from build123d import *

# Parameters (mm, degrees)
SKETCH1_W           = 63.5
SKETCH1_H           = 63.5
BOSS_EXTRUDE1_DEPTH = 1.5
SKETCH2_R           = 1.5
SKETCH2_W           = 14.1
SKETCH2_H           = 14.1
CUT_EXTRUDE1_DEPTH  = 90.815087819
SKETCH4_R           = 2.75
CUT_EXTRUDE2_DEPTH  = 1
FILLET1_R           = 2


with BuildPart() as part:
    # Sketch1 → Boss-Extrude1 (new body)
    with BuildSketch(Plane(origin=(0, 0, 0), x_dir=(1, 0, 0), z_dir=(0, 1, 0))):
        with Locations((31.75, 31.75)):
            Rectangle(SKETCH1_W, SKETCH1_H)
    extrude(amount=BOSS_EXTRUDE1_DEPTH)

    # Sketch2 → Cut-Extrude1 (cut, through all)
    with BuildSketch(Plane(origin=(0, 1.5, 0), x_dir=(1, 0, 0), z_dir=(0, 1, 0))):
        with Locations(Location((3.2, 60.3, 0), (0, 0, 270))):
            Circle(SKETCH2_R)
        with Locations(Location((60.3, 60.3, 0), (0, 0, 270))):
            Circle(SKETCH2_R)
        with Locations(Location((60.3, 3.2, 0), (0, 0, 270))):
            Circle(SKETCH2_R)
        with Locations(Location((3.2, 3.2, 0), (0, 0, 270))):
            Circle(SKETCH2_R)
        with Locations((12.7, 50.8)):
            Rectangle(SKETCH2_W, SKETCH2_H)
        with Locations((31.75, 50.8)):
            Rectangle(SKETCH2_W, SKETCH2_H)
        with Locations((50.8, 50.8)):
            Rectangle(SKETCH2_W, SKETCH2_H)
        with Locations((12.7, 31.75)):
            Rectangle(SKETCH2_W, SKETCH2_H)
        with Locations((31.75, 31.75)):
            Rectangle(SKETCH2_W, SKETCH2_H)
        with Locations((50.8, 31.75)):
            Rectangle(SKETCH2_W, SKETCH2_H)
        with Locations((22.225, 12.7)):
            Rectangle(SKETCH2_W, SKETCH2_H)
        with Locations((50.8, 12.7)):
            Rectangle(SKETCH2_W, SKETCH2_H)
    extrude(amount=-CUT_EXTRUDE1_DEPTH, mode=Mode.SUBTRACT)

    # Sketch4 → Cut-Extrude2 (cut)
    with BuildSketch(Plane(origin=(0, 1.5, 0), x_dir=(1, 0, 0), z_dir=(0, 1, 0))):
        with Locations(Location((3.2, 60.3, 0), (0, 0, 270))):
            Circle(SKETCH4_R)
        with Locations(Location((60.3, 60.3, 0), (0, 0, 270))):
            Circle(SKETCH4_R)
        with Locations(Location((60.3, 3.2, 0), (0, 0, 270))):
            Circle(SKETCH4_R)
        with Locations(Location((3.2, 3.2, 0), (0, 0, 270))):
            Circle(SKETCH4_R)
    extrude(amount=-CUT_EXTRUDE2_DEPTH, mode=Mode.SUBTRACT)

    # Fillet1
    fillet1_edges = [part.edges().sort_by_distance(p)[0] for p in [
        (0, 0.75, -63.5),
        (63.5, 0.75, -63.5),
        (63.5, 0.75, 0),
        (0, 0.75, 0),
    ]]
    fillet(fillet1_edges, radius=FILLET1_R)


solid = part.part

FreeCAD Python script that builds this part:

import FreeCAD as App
import Part
import Sketcher

V = App.Vector


def edges_at(feature, points):
    """Names of the edges that pass closest to the given points."""
    edges = feature.Shape.Edges
    near = lambda p: min(range(len(edges)), key=lambda i: edges[i].distToShape(Part.Vertex(*p))[0])
    return sorted({f"Edge{near(p) + 1}" for p in points})

doc = App.newDocument("Part")
body = doc.addObject("PartDesign::Body", "Body")

# Sketch on XZ plane
sketch1 = doc.addObject("Sketcher::SketchObject", "Sketch")
body.addObject(sketch1)
sketch1.AttachmentSupport = (doc.XZ_Plane, [""])
sketch1.MapMode = "FlatFace"
sketch1.addGeometry(Part.LineSegment(V(0, -64, 0), V(0, 0, 0)), False)
sketch1.addGeometry(Part.LineSegment(V(0, 0, 0), V(64, 0, 0)), False)
sketch1.addGeometry(Part.LineSegment(V(64, 0, 0), V(64, -64, 0)), False)
sketch1.addGeometry(Part.LineSegment(V(64, -64, 0), V(0, -64, 0)), False)
sketch1.addConstraint(Sketcher.Constraint("Coincident", 0, 2, 1, 1))
sketch1.addConstraint(Sketcher.Constraint("Coincident", 1, 2, 2, 1))
sketch1.addConstraint(Sketcher.Constraint("Coincident", 2, 2, 3, 1))
sketch1.addConstraint(Sketcher.Constraint("Coincident", 3, 2, 0, 1))
sketch1.addConstraint(Sketcher.Constraint("Vertical", 0))
sketch1.addConstraint(Sketcher.Constraint("Horizontal", 1))
sketch1.addConstraint(Sketcher.Constraint("Vertical", 2))
sketch1.addConstraint(Sketcher.Constraint("Horizontal", 3))
sketch1.addConstraint(Sketcher.Constraint("Coincident", 0, 2, -1, 1))
sketch1.addConstraint(Sketcher.Constraint("Equal", 3, 0))
sketch1.addConstraint(Sketcher.Constraint("DistanceX", 1, 1, 1, 2, 63.5))
pad1 = doc.addObject("PartDesign::Pad", "Pad")
body.addObject(pad1)
pad1.Profile = sketch1
pad1.Length = 1.5
pad1.Reversed = True

# Sketch on XZ plane
sketch2 = doc.addObject("Sketcher::SketchObject", "Sketch001")
body.addObject(sketch2)
sketch2.AttachmentSupport = (doc.XZ_Plane, [""])
sketch2.MapMode = "FlatFace"
sketch2.AttachmentOffset = App.Placement(V(0, 0, -1.5), App.Rotation())
sketch2.addGeometry(Part.Circle(V(3.2, -60.3, 0), V(0, 0, 1), 1.5), False)
sketch2.addGeometry(Part.Circle(V(60.3, -60.3, 0), V(0, 0, 1), 1.5), False)
sketch2.addGeometry(Part.Circle(V(60.3, -3.2, 0), V(0, 0, 1), 1.5), False)
sketch2.addGeometry(Part.Circle(V(3.2, -3.2, 0), V(0, 0, 1), 1.5), False)
sketch2.addGeometry(Part.LineSegment(V(5.7, -57.9, 0), V(5.7, -43.8, 0)), False)
sketch2.addGeometry(Part.LineSegment(V(5.7, -43.8, 0), V(19.8, -43.8, 0)), False)
sketch2.addGeometry(Part.LineSegment(V(19.8, -43.8, 0), V(19.8, -57.9, 0)), False)
sketch2.addGeometry(Part.LineSegment(V(19.8, -57.9, 0), V(5.7, -57.9, 0)), False)
sketch2.addGeometry(Part.LineSegment(V(24.7, -57.9, 0), V(24.7, -43.8, 0)), False)
sketch2.addGeometry(Part.LineSegment(V(24.7, -43.8, 0), V(38.8, -43.8, 0)), False)
sketch2.addGeometry(Part.LineSegment(V(38.8, -43.8, 0), V(38.8, -57.9, 0)), False)
sketch2.addGeometry(Part.LineSegment(V(38.8, -57.9, 0), V(24.7, -57.9, 0)), False)
sketch2.addGeometry(Part.LineSegment(V(43.8, -57.9, 0), V(43.8, -43.8, 0)), False)
sketch2.addGeometry(Part.LineSegment(V(43.8, -43.8, 0), V(57.9, -43.8, 0)), False)
sketch2.addGeometry(Part.LineSegment(V(57.9, -43.8, 0), V(57.9, -57.9, 0)), False)
sketch2.addGeometry(Part.LineSegment(V(57.9, -57.9, 0), V(43.8, -57.9, 0)), False)
sketch2.addGeometry(Part.LineSegment(V(5.7, -38.8, 0), V(5.7, -24.7, 0)), False)
sketch2.addGeometry(Part.LineSegment(V(5.7, -24.7, 0), V(19.8, -24.7, 0)), False)
sketch2.addGeometry(Part.LineSegment(V(19.8, -24.7, 0), V(19.8, -38.8, 0)), False)
sketch2.addGeometry(Part.LineSegment(V(19.8, -38.8, 0), V(5.7, -38.8, 0)), False)
sketch2.addGeometry(Part.LineSegment(V(24.7, -38.8, 0), V(24.7, -24.7, 0)), False)
sketch2.addGeometry(Part.LineSegment(V(24.7, -24.7, 0), V(38.8, -24.7, 0)), False)
sketch2.addGeometry(Part.LineSegment(V(38.8, -24.7, 0), V(38.8, -38.8, 0)), False)
sketch2.addGeometry(Part.LineSegment(V(38.8, -38.8, 0), V(24.7, -38.8, 0)), False)
sketch2.addGeometry(Part.LineSegment(V(43.8, -38.8, 0), V(43.8, -24.7, 0)), False)
sketch2.addGeometry(Part.LineSegment(V(43.8, -24.7, 0), V(57.9, -24.7, 0)), False)
sketch2.addGeometry(Part.LineSegment(V(57.9, -24.7, 0), V(57.9, -38.8, 0)), False)
sketch2.addGeometry(Part.LineSegment(V(57.9, -38.8, 0), V(43.8, -38.8, 0)), False)
sketch2.addGeometry(Part.LineSegment(V(15.2, -19.8, 0), V(15.2, -5.7, 0)), False)
sketch2.addGeometry(Part.LineSegment(V(15.2, -5.7, 0), V(29.3, -5.7, 0)), False)
sketch2.addGeometry(Part.LineSegment(V(29.3, -5.7, 0), V(29.3, -19.8, 0)), False)
sketch2.addGeometry(Part.LineSegment(V(29.3, -19.8, 0), V(15.2, -19.8, 0)), False)
sketch2.addGeometry(Part.LineSegment(V(43.8, -19.8, 0), V(43.8, -5.7, 0)), False)
sketch2.addGeometry(Part.LineSegment(V(43.8, -5.7, 0), V(57.9, -5.7, 0)), False)
sketch2.addGeometry(Part.LineSegment(V(57.9, -5.7, 0), V(57.9, -19.8, 0)), False)
sketch2.addGeometry(Part.LineSegment(V(57.9, -19.8, 0), V(43.8, -19.8, 0)), False)
sketch2.addConstraint(Sketcher.Constraint("Coincident", 4, 2, 5, 1))
sketch2.addConstraint(Sketcher.Constraint("Coincident", 5, 2, 6, 1))
sketch2.addConstraint(Sketcher.Constraint("Coincident", 6, 2, 7, 1))
sketch2.addConstraint(Sketcher.Constraint("Coincident", 7, 2, 4, 1))
sketch2.addConstraint(Sketcher.Constraint("Coincident", 8, 2, 9, 1))
sketch2.addConstraint(Sketcher.Constraint("Coincident", 9, 2, 10, 1))
sketch2.addConstraint(Sketcher.Constraint("Coincident", 10, 2, 11, 1))
sketch2.addConstraint(Sketcher.Constraint("Coincident", 11, 2, 8, 1))
sketch2.addConstraint(Sketcher.Constraint("Coincident", 12, 2, 13, 1))
sketch2.addConstraint(Sketcher.Constraint("Coincident", 13, 2, 14, 1))
sketch2.addConstraint(Sketcher.Constraint("Coincident", 14, 2, 15, 1))
sketch2.addConstraint(Sketcher.Constraint("Coincident", 15, 2, 12, 1))
sketch2.addConstraint(Sketcher.Constraint("Coincident", 16, 2, 17, 1))
sketch2.addConstraint(Sketcher.Constraint("Coincident", 17, 2, 18, 1))
sketch2.addConstraint(Sketcher.Constraint("Coincident", 18, 2, 19, 1))
sketch2.addConstraint(Sketcher.Constraint("Coincident", 19, 2, 16, 1))
sketch2.addConstraint(Sketcher.Constraint("Coincident", 20, 2, 21, 1))
sketch2.addConstraint(Sketcher.Constraint("Coincident", 21, 2, 22, 1))
sketch2.addConstraint(Sketcher.Constraint("Coincident", 22, 2, 23, 1))
sketch2.addConstraint(Sketcher.Constraint("Coincident", 23, 2, 20, 1))
sketch2.addConstraint(Sketcher.Constraint("Coincident", 24, 2, 25, 1))
sketch2.addConstraint(Sketcher.Constraint("Coincident", 25, 2, 26, 1))
sketch2.addConstraint(Sketcher.Constraint("Coincident", 26, 2, 27, 1))
sketch2.addConstraint(Sketcher.Constraint("Coincident", 27, 2, 24, 1))
sketch2.addConstraint(Sketcher.Constraint("Coincident", 28, 2, 29, 1))
sketch2.addConstraint(Sketcher.Constraint("Coincident", 29, 2, 30, 1))
sketch2.addConstraint(Sketcher.Constraint("Coincident", 30, 2, 31, 1))
sketch2.addConstraint(Sketcher.Constraint("Coincident", 31, 2, 28, 1))
sketch2.addConstraint(Sketcher.Constraint("Coincident", 32, 2, 33, 1))
sketch2.addConstraint(Sketcher.Constraint("Coincident", 33, 2, 34, 1))
sketch2.addConstraint(Sketcher.Constraint("Coincident", 34, 2, 35, 1))
sketch2.addConstraint(Sketcher.Constraint("Coincident", 35, 2, 32, 1))
sketch2.addConstraint(Sketcher.Constraint("Vertical", 4))
sketch2.addConstraint(Sketcher.Constraint("Horizontal", 5))
sketch2.addConstraint(Sketcher.Constraint("Vertical", 6))
sketch2.addConstraint(Sketcher.Constraint("Horizontal", 7))
sketch2.addConstraint(Sketcher.Constraint("Vertical", 8))
sketch2.addConstraint(Sketcher.Constraint("Horizontal", 9))
sketch2.addConstraint(Sketcher.Constraint("Vertical", 10))
sketch2.addConstraint(Sketcher.Constraint("Horizontal", 11))
sketch2.addConstraint(Sketcher.Constraint("Vertical", 12))
sketch2.addConstraint(Sketcher.Constraint("Horizontal", 13))
sketch2.addConstraint(Sketcher.Constraint("Vertical", 14))
sketch2.addConstraint(Sketcher.Constraint("Horizontal", 15))
sketch2.addConstraint(Sketcher.Constraint("Vertical", 16))
sketch2.addConstraint(Sketcher.Constraint("Horizontal", 17))
sketch2.addConstraint(Sketcher.Constraint("Vertical", 18))
sketch2.addConstraint(Sketcher.Constraint("Horizontal", 19))
sketch2.addConstraint(Sketcher.Constraint("Vertical", 20))
sketch2.addConstraint(Sketcher.Constraint("Horizontal", 21))
sketch2.addConstraint(Sketcher.Constraint("Vertical", 22))
sketch2.addConstraint(Sketcher.Constraint("Horizontal", 23))
sketch2.addConstraint(Sketcher.Constraint("Vertical", 24))
sketch2.addConstraint(Sketcher.Constraint("Horizontal", 25))
sketch2.addConstraint(Sketcher.Constraint("Vertical", 26))
sketch2.addConstraint(Sketcher.Constraint("Horizontal", 27))
sketch2.addConstraint(Sketcher.Constraint("Vertical", 28))
sketch2.addConstraint(Sketcher.Constraint("Horizontal", 29))
sketch2.addConstraint(Sketcher.Constraint("Vertical", 30))
sketch2.addConstraint(Sketcher.Constraint("Horizontal", 31))
sketch2.addConstraint(Sketcher.Constraint("Vertical", 32))
sketch2.addConstraint(Sketcher.Constraint("Horizontal", 33))
sketch2.addConstraint(Sketcher.Constraint("Vertical", 34))
sketch2.addConstraint(Sketcher.Constraint("Horizontal", 35))
sketch2.addConstraint(Sketcher.Constraint("Equal", 0, 1))
sketch2.addConstraint(Sketcher.Constraint("Equal", 1, 2))
sketch2.addConstraint(Sketcher.Constraint("Equal", 2, 3))
sketch2.addConstraint(Sketcher.Constraint("Horizontal", 0, 3, 1, 3))
sketch2.addConstraint(Sketcher.Constraint("Horizontal", 2, 3, 3, 3))
sketch2.addConstraint(Sketcher.Constraint("Horizontal", 5, 2, 8, 2))
sketch2.addConstraint(Sketcher.Constraint("Horizontal", 7, 2, 10, 2))
sketch2.addConstraint(Sketcher.Constraint("Horizontal", 9, 2, 12, 2))
sketch2.addConstraint(Sketcher.Constraint("Horizontal", 11, 2, 14, 2))
sketch2.addConstraint(Sketcher.Constraint("Horizontal", 17, 2, 20, 2))
sketch2.addConstraint(Sketcher.Constraint("Horizontal", 19, 2, 22, 2))
sketch2.addConstraint(Sketcher.Constraint("Horizontal", 21, 2, 24, 2))
sketch2.addConstraint(Sketcher.Constraint("Horizontal", 23, 2, 26, 2))
sketch2.addConstraint(Sketcher.Constraint("Horizontal", 29, 2, 32, 2))
sketch2.addConstraint(Sketcher.Constraint("Horizontal", 31, 2, 34, 2))
sketch2.addConstraint(Sketcher.Constraint("Vertical", 1, 3, 2, 3))
sketch2.addConstraint(Sketcher.Constraint("Vertical", 0, 3, 3, 3))
sketch2.addConstraint(Sketcher.Constraint("Vertical", 7, 2, 16, 2))
sketch2.addConstraint(Sketcher.Constraint("Vertical", 6, 2, 17, 2))
sketch2.addConstraint(Sketcher.Constraint("Vertical", 11, 2, 20, 2))
sketch2.addConstraint(Sketcher.Constraint("Vertical", 10, 2, 21, 2))
sketch2.addConstraint(Sketcher.Constraint("Vertical", 15, 2, 24, 2))
sketch2.addConstraint(Sketcher.Constraint("Vertical", 14, 2, 25, 2))
sketch2.addConstraint(Sketcher.Constraint("Vertical", 27, 2, 32, 2))
sketch2.addConstraint(Sketcher.Constraint("Vertical", 26, 2, 33, 2))
sketch2.addConstraint(Sketcher.Constraint("Equal", 7, 9))
sketch2.addConstraint(Sketcher.Constraint("Equal", 11, 13))
sketch2.addConstraint(Sketcher.Constraint("Equal", 27, 29))
sketch2.addConstraint(Sketcher.Constraint("Equal", 35, 4))
sketch2.addConstraint(Sketcher.Constraint("Equal", 14, 16))
sketch2.addConstraint(Sketcher.Constraint("Equal", 26, 28))
sketch2.addConstraint(Sketcher.Constraint("Diameter", 0, 3.0))
sketch2.addConstraint(Sketcher.Constraint("DistanceX", 5, 1, 5, 2, 14.1))
sketch2.addConstraint(Sketcher.Constraint("DistanceX", -1, 1, 0, 3, 3.2))
sketch2.addConstraint(Sketcher.Constraint("DistanceY", 0, 3, -1, 1, 60.3))
sketch2.addConstraint(Sketcher.Constraint("DistanceX", -1, 1, 1, 3, 60.3))
sketch2.addConstraint(Sketcher.Constraint("DistanceY", 2, 3, -1, 1, 3.2))
sketch2.addConstraint(Sketcher.Constraint("DistanceX", -1, 1, 8, 2, 24.7))
sketch2.addConstraint(Sketcher.Constraint("DistanceY", 16, 2, -1, 1, 24.7))
sketch2.addConstraint(Sketcher.Constraint("DistanceX", -1, 1, 4, 2, 5.65))
sketch2.addConstraint(Sketcher.Constraint("DistanceY", 4, 2, -1, 1, 43.75))
sketch2.addConstraint(Sketcher.Constraint("DistanceX", -1, 1, 12, 2, 43.75))
sketch2.addConstraint(Sketcher.Constraint("DistanceY", 28, 2, -1, 1, 5.65))
sketch2.addConstraint(Sketcher.Constraint("DistanceX", -1, 1, 28, 2, 15.175))
pocket1 = doc.addObject("PartDesign::Pocket", "Pocket")
body.addObject(pocket1)
pocket1.Profile = sketch2
pocket1.Type = "ThroughAll"
pocket1.Reversed = True

# Sketch on XZ plane
sketch3 = doc.addObject("Sketcher::SketchObject", "Sketch002")
body.addObject(sketch3)
sketch3.AttachmentSupport = (doc.XZ_Plane, [""])
sketch3.MapMode = "FlatFace"
sketch3.AttachmentOffset = App.Placement(V(0, 0, -1.5), App.Rotation())
sketch3.addGeometry(Part.Circle(V(3.2, -60.3, 0), V(0, 0, 1), 2.8), False)
sketch3.addGeometry(Part.Circle(V(60.3, -60.3, 0), V(0, 0, 1), 2.8), False)
sketch3.addGeometry(Part.Circle(V(60.3, -3.2, 0), V(0, 0, 1), 2.8), False)
sketch3.addGeometry(Part.Circle(V(3.2, -3.2, 0), V(0, 0, 1), 2.8), False)
sketch3.addConstraint(Sketcher.Constraint("Equal", 0, 1))
sketch3.addConstraint(Sketcher.Constraint("Equal", 1, 2))
sketch3.addConstraint(Sketcher.Constraint("Equal", 2, 3))
sketch3.addConstraint(Sketcher.Constraint("Horizontal", 0, 3, 1, 3))
sketch3.addConstraint(Sketcher.Constraint("Horizontal", 2, 3, 3, 3))
sketch3.addConstraint(Sketcher.Constraint("Vertical", 1, 3, 2, 3))
sketch3.addConstraint(Sketcher.Constraint("Vertical", 0, 3, 3, 3))
sketch3.addConstraint(Sketcher.Constraint("Diameter", 0, 5.5))
sketch3.addConstraint(Sketcher.Constraint("DistanceX", -1, 1, 0, 3, 3.2))
sketch3.addConstraint(Sketcher.Constraint("DistanceY", 0, 3, -1, 1, 60.3))
sketch3.addConstraint(Sketcher.Constraint("DistanceX", -1, 1, 1, 3, 60.3))
sketch3.addConstraint(Sketcher.Constraint("DistanceY", 2, 3, -1, 1, 3.2))
pocket2 = doc.addObject("PartDesign::Pocket", "Pocket001")
body.addObject(pocket2)
pocket2.Profile = sketch3
pocket2.Length = 1
pocket2.Reversed = True
doc.recompute()

fillet = doc.addObject("PartDesign::Fillet", "Fillet")
body.addObject(fillet)
fillet.Base = (pocket2, edges_at(pocket2, [
    (0, 0.75, -63.5),
    (63.5, 0.75, -63.5),
    (63.5, 0.75, 0),
    (0, 0.75, 0),
]))
fillet.Radius = 2

doc.recompute()
